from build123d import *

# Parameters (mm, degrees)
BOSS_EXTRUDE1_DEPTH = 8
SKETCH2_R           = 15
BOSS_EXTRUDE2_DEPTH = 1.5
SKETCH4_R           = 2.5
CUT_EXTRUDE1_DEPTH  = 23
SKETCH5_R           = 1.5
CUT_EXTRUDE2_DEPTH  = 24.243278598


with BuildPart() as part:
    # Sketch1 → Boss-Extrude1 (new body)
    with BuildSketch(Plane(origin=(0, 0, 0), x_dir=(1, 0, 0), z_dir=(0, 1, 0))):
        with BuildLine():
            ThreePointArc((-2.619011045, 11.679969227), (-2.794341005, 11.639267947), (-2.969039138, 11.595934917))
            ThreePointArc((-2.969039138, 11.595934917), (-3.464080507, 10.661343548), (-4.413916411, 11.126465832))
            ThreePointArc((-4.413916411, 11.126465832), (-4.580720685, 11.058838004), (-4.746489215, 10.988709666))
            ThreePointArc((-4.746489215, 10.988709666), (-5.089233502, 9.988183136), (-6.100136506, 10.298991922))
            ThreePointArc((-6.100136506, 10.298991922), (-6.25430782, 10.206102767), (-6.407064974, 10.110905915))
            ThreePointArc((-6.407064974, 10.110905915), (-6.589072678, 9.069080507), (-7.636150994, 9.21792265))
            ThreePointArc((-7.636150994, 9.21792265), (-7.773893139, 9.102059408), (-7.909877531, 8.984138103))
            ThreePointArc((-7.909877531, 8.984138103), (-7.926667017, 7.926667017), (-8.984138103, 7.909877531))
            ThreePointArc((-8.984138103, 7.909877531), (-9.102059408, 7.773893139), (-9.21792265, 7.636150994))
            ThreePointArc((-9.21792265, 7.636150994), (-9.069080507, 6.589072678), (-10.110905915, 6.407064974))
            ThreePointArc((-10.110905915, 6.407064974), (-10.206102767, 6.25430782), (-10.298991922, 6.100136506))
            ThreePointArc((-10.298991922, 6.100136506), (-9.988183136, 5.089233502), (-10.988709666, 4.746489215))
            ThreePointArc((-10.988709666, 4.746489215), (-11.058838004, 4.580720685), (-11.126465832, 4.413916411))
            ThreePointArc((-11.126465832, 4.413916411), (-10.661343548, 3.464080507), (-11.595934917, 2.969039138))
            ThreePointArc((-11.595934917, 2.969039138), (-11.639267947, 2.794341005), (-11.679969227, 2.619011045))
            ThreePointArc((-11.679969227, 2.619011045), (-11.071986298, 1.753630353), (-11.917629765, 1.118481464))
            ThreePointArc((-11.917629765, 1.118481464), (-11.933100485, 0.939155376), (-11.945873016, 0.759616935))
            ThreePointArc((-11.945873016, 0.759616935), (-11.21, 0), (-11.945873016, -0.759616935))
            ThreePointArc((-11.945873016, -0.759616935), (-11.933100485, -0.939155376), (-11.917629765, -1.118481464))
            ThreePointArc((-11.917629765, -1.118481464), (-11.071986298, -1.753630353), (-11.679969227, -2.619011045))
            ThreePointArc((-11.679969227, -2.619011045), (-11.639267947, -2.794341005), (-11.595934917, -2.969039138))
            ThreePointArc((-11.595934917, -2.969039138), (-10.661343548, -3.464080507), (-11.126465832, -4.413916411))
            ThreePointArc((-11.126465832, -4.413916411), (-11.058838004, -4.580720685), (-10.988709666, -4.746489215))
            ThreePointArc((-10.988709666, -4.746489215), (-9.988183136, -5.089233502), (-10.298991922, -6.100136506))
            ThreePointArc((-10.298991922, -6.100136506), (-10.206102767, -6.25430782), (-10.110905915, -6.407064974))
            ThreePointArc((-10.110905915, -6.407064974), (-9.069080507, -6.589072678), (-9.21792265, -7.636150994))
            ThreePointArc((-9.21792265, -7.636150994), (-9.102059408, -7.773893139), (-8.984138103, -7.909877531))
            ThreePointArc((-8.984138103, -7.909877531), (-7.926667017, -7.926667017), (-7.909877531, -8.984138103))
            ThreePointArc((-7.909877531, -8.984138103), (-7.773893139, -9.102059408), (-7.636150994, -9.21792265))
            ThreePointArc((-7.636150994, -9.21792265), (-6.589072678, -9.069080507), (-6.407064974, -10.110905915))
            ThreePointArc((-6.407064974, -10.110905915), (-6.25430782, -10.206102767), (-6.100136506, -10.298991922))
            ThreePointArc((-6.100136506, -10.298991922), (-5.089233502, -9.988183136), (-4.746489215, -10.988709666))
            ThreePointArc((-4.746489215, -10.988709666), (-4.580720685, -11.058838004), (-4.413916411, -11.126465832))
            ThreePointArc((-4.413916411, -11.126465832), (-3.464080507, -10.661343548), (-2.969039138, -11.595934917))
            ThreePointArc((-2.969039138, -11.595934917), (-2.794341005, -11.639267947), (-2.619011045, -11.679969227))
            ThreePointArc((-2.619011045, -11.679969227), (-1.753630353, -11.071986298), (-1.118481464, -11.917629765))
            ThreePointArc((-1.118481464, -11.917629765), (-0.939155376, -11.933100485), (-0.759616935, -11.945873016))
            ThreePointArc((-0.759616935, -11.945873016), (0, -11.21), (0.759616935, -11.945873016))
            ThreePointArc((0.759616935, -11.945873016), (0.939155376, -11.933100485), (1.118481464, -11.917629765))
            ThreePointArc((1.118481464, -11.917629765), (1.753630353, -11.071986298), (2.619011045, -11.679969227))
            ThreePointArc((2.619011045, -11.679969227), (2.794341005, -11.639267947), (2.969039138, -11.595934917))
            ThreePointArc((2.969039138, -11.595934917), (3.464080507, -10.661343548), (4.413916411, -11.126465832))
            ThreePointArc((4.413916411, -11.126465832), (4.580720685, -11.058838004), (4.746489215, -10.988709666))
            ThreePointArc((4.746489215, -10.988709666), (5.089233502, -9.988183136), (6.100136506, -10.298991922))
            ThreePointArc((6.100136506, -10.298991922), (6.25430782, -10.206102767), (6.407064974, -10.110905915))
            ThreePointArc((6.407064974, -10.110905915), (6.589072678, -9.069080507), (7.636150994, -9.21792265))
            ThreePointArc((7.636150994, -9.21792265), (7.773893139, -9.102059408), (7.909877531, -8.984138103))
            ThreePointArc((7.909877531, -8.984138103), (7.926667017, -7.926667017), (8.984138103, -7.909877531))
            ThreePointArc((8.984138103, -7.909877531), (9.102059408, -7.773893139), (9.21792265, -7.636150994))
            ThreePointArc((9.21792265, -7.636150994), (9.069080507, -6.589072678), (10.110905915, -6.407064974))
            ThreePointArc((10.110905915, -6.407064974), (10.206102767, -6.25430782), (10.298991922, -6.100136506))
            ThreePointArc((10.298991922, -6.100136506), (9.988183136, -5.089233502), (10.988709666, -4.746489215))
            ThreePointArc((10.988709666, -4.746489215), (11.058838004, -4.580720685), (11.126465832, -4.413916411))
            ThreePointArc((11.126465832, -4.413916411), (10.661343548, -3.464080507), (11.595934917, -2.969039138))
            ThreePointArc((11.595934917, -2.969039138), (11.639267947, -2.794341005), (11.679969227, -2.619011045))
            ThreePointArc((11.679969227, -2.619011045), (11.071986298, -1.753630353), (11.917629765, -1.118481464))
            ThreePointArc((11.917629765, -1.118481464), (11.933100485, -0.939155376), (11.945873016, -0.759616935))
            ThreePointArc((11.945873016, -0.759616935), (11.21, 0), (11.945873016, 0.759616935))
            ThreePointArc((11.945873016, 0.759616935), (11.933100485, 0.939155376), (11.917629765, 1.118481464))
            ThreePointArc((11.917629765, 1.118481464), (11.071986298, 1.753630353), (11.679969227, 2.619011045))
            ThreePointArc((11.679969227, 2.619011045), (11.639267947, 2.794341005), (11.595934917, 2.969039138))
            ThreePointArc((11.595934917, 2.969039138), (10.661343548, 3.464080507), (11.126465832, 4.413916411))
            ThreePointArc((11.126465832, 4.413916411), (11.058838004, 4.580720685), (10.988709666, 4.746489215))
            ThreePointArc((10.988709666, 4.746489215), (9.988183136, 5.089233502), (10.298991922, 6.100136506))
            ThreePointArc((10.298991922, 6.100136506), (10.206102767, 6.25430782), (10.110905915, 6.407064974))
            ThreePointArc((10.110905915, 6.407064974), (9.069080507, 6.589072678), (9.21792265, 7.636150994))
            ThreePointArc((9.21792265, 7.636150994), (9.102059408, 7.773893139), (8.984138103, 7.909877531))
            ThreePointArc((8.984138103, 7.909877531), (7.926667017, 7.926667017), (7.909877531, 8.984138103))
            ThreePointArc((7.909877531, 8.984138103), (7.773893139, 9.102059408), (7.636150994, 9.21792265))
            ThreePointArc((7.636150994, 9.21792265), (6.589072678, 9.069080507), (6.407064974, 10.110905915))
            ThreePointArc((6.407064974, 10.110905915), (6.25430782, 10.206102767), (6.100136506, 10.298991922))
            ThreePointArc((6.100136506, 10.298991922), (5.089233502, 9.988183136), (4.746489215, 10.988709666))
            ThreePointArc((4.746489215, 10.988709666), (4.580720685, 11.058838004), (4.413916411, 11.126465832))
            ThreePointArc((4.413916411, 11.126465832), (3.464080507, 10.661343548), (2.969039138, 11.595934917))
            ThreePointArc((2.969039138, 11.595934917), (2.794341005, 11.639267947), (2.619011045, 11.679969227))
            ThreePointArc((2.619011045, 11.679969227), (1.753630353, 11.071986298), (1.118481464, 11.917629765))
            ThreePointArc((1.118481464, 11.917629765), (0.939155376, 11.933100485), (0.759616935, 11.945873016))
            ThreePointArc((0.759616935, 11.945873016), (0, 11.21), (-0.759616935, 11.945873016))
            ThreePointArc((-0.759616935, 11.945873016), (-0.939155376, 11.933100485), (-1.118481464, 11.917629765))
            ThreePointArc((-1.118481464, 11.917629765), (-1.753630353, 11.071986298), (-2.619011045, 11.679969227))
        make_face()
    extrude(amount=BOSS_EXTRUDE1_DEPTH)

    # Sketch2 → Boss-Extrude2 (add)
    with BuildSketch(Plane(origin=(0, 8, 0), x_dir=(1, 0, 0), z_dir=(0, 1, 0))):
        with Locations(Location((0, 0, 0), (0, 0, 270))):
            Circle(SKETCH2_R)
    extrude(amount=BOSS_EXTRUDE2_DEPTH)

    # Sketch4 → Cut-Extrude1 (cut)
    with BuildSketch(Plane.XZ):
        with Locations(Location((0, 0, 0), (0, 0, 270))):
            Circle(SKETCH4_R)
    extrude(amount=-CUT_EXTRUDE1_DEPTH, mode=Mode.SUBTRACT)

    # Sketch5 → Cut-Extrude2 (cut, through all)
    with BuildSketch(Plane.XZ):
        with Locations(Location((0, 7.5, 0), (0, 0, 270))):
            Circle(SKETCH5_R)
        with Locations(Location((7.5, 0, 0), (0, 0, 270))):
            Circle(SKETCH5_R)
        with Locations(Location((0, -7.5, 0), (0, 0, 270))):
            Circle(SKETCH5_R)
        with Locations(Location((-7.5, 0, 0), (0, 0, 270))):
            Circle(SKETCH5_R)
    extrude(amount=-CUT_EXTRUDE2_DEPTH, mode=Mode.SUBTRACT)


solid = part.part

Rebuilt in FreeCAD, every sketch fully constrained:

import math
import FreeCAD as App
import Part
import Sketcher
Q = App.Units.Quantity

doc = App.newDocument("Part")
body = doc.addObject("PartDesign::Body", "Body")

sketch1 = body.newObject("Sketcher::SketchObject", "Sketch")
sketch1.AttachmentSupport = (doc.getObject("XZ_Plane"), [""])
sketch1.MapMode = "FlatFace"
sketch1.addGeometry([
    Part.ArcOfCircle(Part.Circle(App.Vector(0, 0, 0), App.Vector(0, 0, 1), 11.97), math.radians(-104.36), math.radians(-102.64)),
    Part.ArcOfCircle(Part.Circle(App.Vector(-3.7, -11.38, 0), App.Vector(0, 0, 1), 0.76), math.radians(-16), math.radians(160)),
    Part.ArcOfCircle(Part.Circle(App.Vector(0, 0, 0), App.Vector(0, 0, 1), 11.97), math.radians(-113.36), math.radians(-111.64)),
    Part.ArcOfCircle(Part.Circle(App.Vector(-5.43, -10.67, 0), App.Vector(0, 0, 1), 0.76), math.radians(-25), math.radians(151)),
    Part.ArcOfCircle(Part.Circle(App.Vector(0, 0, 0), App.Vector(0, 0, 1), 11.97), math.radians(-122.36), math.radians(-120.64)),
    Part.ArcOfCircle(Part.Circle(App.Vector(-7.04, -9.68, 0), App.Vector(0, 0, 1), 0.76), math.radians(-34), math.radians(142)),
    Part.ArcOfCircle(Part.Circle(App.Vector(0, 0, 0), App.Vector(0, 0, 1), 11.97), math.radians(-131.36), math.radians(-129.64)),
    Part.ArcOfCircle(Part.Circle(App.Vector(-8.46, -8.46, 0), App.Vector(0, 0, 1), 0.76), math.radians(-43), math.radians(133)),
    Part.ArcOfCircle(Part.Circle(App.Vector(0, 0, 0), App.Vector(0, 0, 1), 11.97), math.radians(-140.36), math.radians(-138.64)),
    Part.ArcOfCircle(Part.Circle(App.Vector(-9.68, -7.04, 0), App.Vector(0, 0, 1), 0.76), math.radians(-52), math.radians(124)),
    Part.ArcOfCircle(Part.Circle(App.Vector(0, 0, 0), App.Vector(0, 0, 1), 11.97), math.radians(-149.36), math.radians(-147.64)),
    Part.ArcOfCircle(Part.Circle(App.Vector(-10.67, -5.43, 0), App.Vector(0, 0, 1), 0.76), math.radians(-61), math.radians(115)),
    Part.ArcOfCircle(Part.Circle(App.Vector(0, 0, 0), App.Vector(0, 0, 1), 11.97), math.radians(-158.36), math.radians(-156.64)),
    Part.ArcOfCircle(Part.Circle(App.Vector(-11.38, -3.7, 0), App.Vector(0, 0, 1), 0.76), math.radians(-70), math.radians(106)),
    Part.ArcOfCircle(Part.Circle(App.Vector(0, 0, 0), App.Vector(0, 0, 1), 11.97), math.radians(-167.36), math.radians(-165.64)),
    Part.ArcOfCircle(Part.Circle(App.Vector(-11.82, -1.87, 0), App.Vector(0, 0, 1), 0.76), math.radians(-79), math.radians(97)),
    Part.ArcOfCircle(Part.Circle(App.Vector(0, 0, 0), App.Vector(0, 0, 1), 11.97), math.radians(-176.36), math.radians(-174.64)),
    Part.ArcOfCircle(Part.Circle(App.Vector(-11.97, 0, 0), App.Vector(0, 0, 1), 0.76), math.radians(-88), math.radians(88)),
    Part.ArcOfCircle(Part.Circle(App.Vector(0, 0, 0), App.Vector(0, 0, 1), 11.97), math.radians(174.64), math.radians(176.36)),
    Part.ArcOfCircle(Part.Circle(App.Vector(-11.82, 1.87, 0), App.Vector(0, 0, 1), 0.76), math.radians(-97), math.radians(79)),
    Part.ArcOfCircle(Part.Circle(App.Vector(0, 0, 0), App.Vector(0, 0, 1), 11.97), math.radians(165.64), math.radians(167.36)),
    Part.ArcOfCircle(Part.Circle(App.Vector(-11.38, 3.7, 0), App.Vector(0, 0, 1), 0.76), math.radians(-106), math.radians(70)),
    Part.ArcOfCircle(Part.Circle(App.Vector(0, 0, 0), App.Vector(0, 0, 1), 11.97), math.radians(156.64), math.radians(158.36)),
    Part.ArcOfCircle(Part.Circle(App.Vector(-10.67, 5.43, 0), App.Vector(0, 0, 1), 0.76), math.radians(-115), math.radians(61)),
    Part.ArcOfCircle(Part.Circle(App.Vector(0, 0, 0), App.Vector(0, 0, 1), 11.97), math.radians(147.64), math.radians(149.36)),
    Part.ArcOfCircle(Part.Circle(App.Vector(-9.68, 7.04, 0), App.Vector(0, 0, 1), 0.76), math.radians(-124), math.radians(52)),
    Part.ArcOfCircle(Part.Circle(App.Vector(0, 0, 0), App.Vector(0, 0, 1), 11.97), math.radians(138.64), math.radians(140.36)),
    Part.ArcOfCircle(Part.Circle(App.Vector(-8.46, 8.46, 0), App.Vector(0, 0, 1), 0.76), math.radians(-133), math.radians(43)),
    Part.ArcOfCircle(Part.Circle(App.Vector(0, 0, 0), App.Vector(0, 0, 1), 11.97), math.radians(129.64), math.radians(131.36)),
    Part.ArcOfCircle(Part.Circle(App.Vector(-7.04, 9.68, 0), App.Vector(0, 0, 1), 0.76), math.radians(-142), math.radians(34)),
    Part.ArcOfCircle(Part.Circle(App.Vector(0, 0, 0), App.Vector(0, 0, 1), 11.97), math.radians(120.64), math.radians(122.36)),
    Part.ArcOfCircle(Part.Circle(App.Vector(-5.43, 10.67, 0), App.Vector(0, 0, 1), 0.76), math.radians(-151), math.radians(25)),
    Part.ArcOfCircle(Part.Circle(App.Vector(0, 0, 0), App.Vector(0, 0, 1), 11.97), math.radians(111.64), math.radians(113.36)),
    Part.ArcOfCircle(Part.Circle(App.Vector(-3.7, 11.38, 0), App.Vector(0, 0, 1), 0.76), math.radians(-160), math.radians(16)),
    Part.ArcOfCircle(Part.Circle(App.Vector(0, 0, 0), App.Vector(0, 0, 1), 11.97), math.radians(102.64), math.radians(104.36)),
    Part.ArcOfCircle(Part.Circle(App.Vector(-1.87, 11.82, 0), App.Vector(0, 0, 1), 0.76), math.radians(-169), math.radians(7)),
    Part.ArcOfCircle(Part.Circle(App.Vector(0, 0, 0), App.Vector(0, 0, 1), 11.97), math.radians(93.64), math.radians(95.36)),
    Part.ArcOfCircle(Part.Circle(App.Vector(0, 11.97, 0), App.Vector(0, 0, 1), 0.76), math.radians(-178), math.radians(-2)),
    Part.ArcOfCircle(Part.Circle(App.Vector(0, 0, 0), App.Vector(0, 0, 1), 11.97), math.radians(84.64), math.radians(86.36)),
    Part.ArcOfCircle(Part.Circle(App.Vector(1.87, 11.82, 0), App.Vector(0, 0, 1), 0.76), math.radians(173), math.radians(349)),
    Part.ArcOfCircle(Part.Circle(App.Vector(0, 0, 0), App.Vector(0, 0, 1), 11.97), math.radians(75.64), math.radians(77.36)),
    Part.ArcOfCircle(Part.Circle(App.Vector(3.7, 11.38, 0), App.Vector(0, 0, 1), 0.76), math.radians(164), math.radians(340)),
    Part.ArcOfCircle(Part.Circle(App.Vector(0, 0, 0), App.Vector(0, 0, 1), 11.97), math.radians(66.64), math.radians(68.36)),
    Part.ArcOfCircle(Part.Circle(App.Vector(5.43, 10.67, 0), App.Vector(0, 0, 1), 0.76), math.radians(155), math.radians(331)),
    Part.ArcOfCircle(Part.Circle(App.Vector(0, 0, 0), App.Vector(0, 0, 1), 11.97), math.radians(57.64), math.radians(59.36)),
    Part.ArcOfCircle(Part.Circle(App.Vector(7.04, 9.68, 0), App.Vector(0, 0, 1), 0.76), math.radians(146), math.radians(322)),
    Part.ArcOfCircle(Part.Circle(App.Vector(0, 0, 0), App.Vector(0, 0, 1), 11.97), math.radians(48.64), math.radians(50.36)),
    Part.ArcOfCircle(Part.Circle(App.Vector(8.46, 8.46, 0), App.Vector(0, 0, 1), 0.76), math.radians(137), math.radians(313)),
    Part.ArcOfCircle(Part.Circle(App.Vector(0, 0, 0), App.Vector(0, 0, 1), 11.97), math.radians(39.64), math.radians(41.36)),
    Part.ArcOfCircle(Part.Circle(App.Vector(9.68, 7.04, 0), App.Vector(0, 0, 1), 0.76), math.radians(128), math.radians(304)),
    Part.ArcOfCircle(Part.Circle(App.Vector(0, 0, 0), App.Vector(0, 0, 1), 11.97), math.radians(30.64), math.radians(32.36)),
    Part.ArcOfCircle(Part.Circle(App.Vector(10.67, 5.43, 0), App.Vector(0, 0, 1), 0.76), math.radians(119), math.radians(295)),
    Part.ArcOfCircle(Part.Circle(App.Vector(0, 0, 0), App.Vector(0, 0, 1), 11.97), math.radians(21.64), math.radians(23.36)),
    Part.ArcOfCircle(Part.Circle(App.Vector(11.38, 3.7, 0), App.Vector(0, 0, 1), 0.76), math.radians(110), math.radians(286)),
    Part.ArcOfCircle(Part.Circle(App.Vector(0, 0, 0), App.Vector(0, 0, 1), 11.97), math.radians(12.64), math.radians(14.36)),
    Part.ArcOfCircle(Part.Circle(App.Vector(11.82, 1.87, 0), App.Vector(0, 0, 1), 0.76), math.radians(101), math.radians(277)),
    Part.ArcOfCircle(Part.Circle(App.Vector(0, 0, 0), App.Vector(0, 0, 1), 11.97), math.radians(3.64), math.radians(5.36)),
    Part.ArcOfCircle(Part.Circle(App.Vector(11.97, 0, 0), App.Vector(0, 0, 1), 0.76), math.radians(92), math.radians(268)),
    Part.ArcOfCircle(Part.Circle(App.Vector(0, 0, 0), App.Vector(0, 0, 1), 11.97), math.radians(-5.36), math.radians(-3.64)),
    Part.ArcOfCircle(Part.Circle(App.Vector(11.82, -1.87, 0), App.Vector(0, 0, 1), 0.76), math.radians(83), math.radians(259)),
    Part.ArcOfCircle(Part.Circle(App.Vector(0, 0, 0), App.Vector(0, 0, 1), 11.97), math.radians(-14.36), math.radians(-12.64)),
    Part.ArcOfCircle(Part.Circle(App.Vector(11.38, -3.7, 0), App.Vector(0, 0, 1), 0.76), math.radians(74), math.radians(250)),
    Part.ArcOfCircle(Part.Circle(App.Vector(0, 0, 0), App.Vector(0, 0, 1), 11.97), math.radians(-23.36), math.radians(-21.64)),
    Part.ArcOfCircle(Part.Circle(App.Vector(10.67, -5.43, 0), App.Vector(0, 0, 1), 0.76), math.radians(65), math.radians(241)),
    Part.ArcOfCircle(Part.Circle(App.Vector(0, 0, 0), App.Vector(0, 0, 1), 11.97), math.radians(-32.36), math.radians(-30.64)),
    Part.ArcOfCircle(Part.Circle(App.Vector(9.68, -7.04, 0), App.Vector(0, 0, 1), 0.76), math.radians(56), math.radians(232)),
    Part.ArcOfCircle(Part.Circle(App.Vector(0, 0, 0), App.Vector(0, 0, 1), 11.97), math.radians(-41.36), math.radians(-39.64)),
    Part.ArcOfCircle(Part.Circle(App.Vector(8.46, -8.46, 0), App.Vector(0, 0, 1), 0.76), math.radians(47), math.radians(223)),
    Part.ArcOfCircle(Part.Circle(App.Vector(0, 0, 0), App.Vector(0, 0, 1), 11.97), math.radians(-50.36), math.radians(-48.64)),
    Part.ArcOfCircle(Part.Circle(App.Vector(7.04, -9.68, 0), App.Vector(0, 0, 1), 0.76), math.radians(38), math.radians(214)),
    Part.ArcOfCircle(Part.Circle(App.Vector(0, 0, 0), App.Vector(0, 0, 1), 11.97), math.radians(-59.36), math.radians(-57.64)),
    Part.ArcOfCircle(Part.Circle(App.Vector(5.43, -10.67, 0), App.Vector(0, 0, 1), 0.76), math.radians(29), math.radians(205)),
    Part.ArcOfCircle(Part.Circle(App.Vector(0, 0, 0), App.Vector(0, 0, 1), 11.97), math.radians(-68.36), math.radians(-66.64)),
    Part.ArcOfCircle(Part.Circle(App.Vector(3.7, -11.38, 0), App.Vector(0, 0, 1), 0.76), math.radians(20), math.radians(196)),
    Part.ArcOfCircle(Part.Circle(App.Vector(0, 0, 0), App.Vector(0, 0, 1), 11.97), math.radians(-77.36), math.radians(-75.64)),
    Part.ArcOfCircle(Part.Circle(App.Vector(1.87, -11.82, 0), App.Vector(0, 0, 1), 0.76), math.radians(11), math.radians(187)),
    Part.ArcOfCircle(Part.Circle(App.Vector(0, 0, 0), App.Vector(0, 0, 1), 11.97), math.radians(-86.36), math.radians(-84.64)),
    Part.ArcOfCircle(Part.Circle(App.Vector(0, -11.97, 0), App.Vector(0, 0, 1), 0.76), math.radians(2), math.radians(178)),
    Part.ArcOfCircle(Part.Circle(App.Vector(0, 0, 0), App.Vector(0, 0, 1), 11.97), math.radians(-95.36), math.radians(-93.64)),
    Part.ArcOfCircle(Part.Circle(App.Vector(-1.87, -11.82, 0), App.Vector(0, 0, 1), 0.76), math.radians(-7), math.radians(169)),
], False)
sketch1.addConstraint([
    Sketcher.Constraint("Coincident", 0, 1, 1, 1),
    Sketcher.Constraint("Coincident", 1, 2, 2, 2),
    Sketcher.Constraint("Coincident", 2, 1, 3, 1),
    Sketcher.Constraint("Coincident", 3, 2, 4, 2),
    Sketcher.Constraint("Coincident", 4, 1, 5, 1),
    Sketcher.Constraint("Coincident", 5, 2, 6, 2),
    Sketcher.Constraint("Coincident", 6, 1, 7, 1),
    Sketcher.Constraint("Coincident", 7, 2, 8, 2),
    Sketcher.Constraint("Coincident", 8, 1, 9, 1),
    Sketcher.Constraint("Coincident", 9, 2, 10, 2),
    Sketcher.Constraint("Coincident", 10, 1, 11, 1),
    Sketcher.Constraint("Coincident", 11, 2, 12, 2),
    Sketcher.Constraint("Coincident", 12, 1, 13, 1),
    Sketcher.Constraint("Coincident", 13, 2, 14, 2),
    Sketcher.Constraint("Coincident", 14, 1, 15, 1),
    Sketcher.Constraint("Coincident", 15, 2, 16, 2),
    Sketcher.Constraint("Coincident", 16, 1, 17, 1),
    Sketcher.Constraint("Coincident", 17, 2, 18, 2),
    Sketcher.Constraint("Coincident", 18, 1, 19, 1),
    Sketcher.Constraint("Coincident", 19, 2, 20, 2),
    Sketcher.Constraint("Coincident", 20, 1, 21, 1),
    Sketcher.Constraint("Coincident", 21, 2, 22, 2),
    Sketcher.Constraint("Coincident", 22, 1, 23, 1),
    Sketcher.Constraint("Coincident", 23, 2, 24, 2),
    Sketcher.Constraint("Coincident", 24, 1, 25, 1),
    Sketcher.Constraint("Coincident", 25, 2, 26, 2),
    Sketcher.Constraint("Coincident", 26, 1, 27, 1),
    Sketcher.Constraint("Coincident", 27, 2, 28, 2),
    Sketcher.Constraint("Coincident", 28, 1, 29, 1),
    Sketcher.Constraint("Coincident", 29, 2, 30, 2),
    Sketcher.Constraint("Coincident", 30, 1, 31, 1),
    Sketcher.Constraint("Coincident", 31, 2, 32, 2),
    Sketcher.Constraint("Coincident", 32, 1, 33, 1),
    Sketcher.Constraint("Coincident", 33, 2, 34, 2),
    Sketcher.Constraint("Coincident", 34, 1, 35, 1),
    Sketcher.Constraint("Coincident", 35, 2, 36, 2),
    Sketcher.Constraint("Coincident", 36, 1, 37, 1),
    Sketcher.Constraint("Coincident", 37, 2, 38, 2),
    Sketcher.Constraint("Coincident", 38, 1, 39, 1),
    Sketcher.Constraint("Coincident", 39, 2, 40, 2),
    Sketcher.Constraint("Coincident", 40, 1, 41, 1),
    Sketcher.Constraint("Coincident", 41, 2, 42, 2),
    Sketcher.Constraint("Coincident", 42, 1, 43, 1),
    Sketcher.Constraint("Coincident", 43, 2, 44, 2),
    Sketcher.Constraint("Coincident", 44, 1, 45, 1),
    Sketcher.Constraint("Coincident", 45, 2, 46, 2),
    Sketcher.Constraint("Coincident", 46, 1, 47, 1),
    Sketcher.Constraint("Coincident", 47, 2, 48, 2),
    Sketcher.Constraint("Coincident", 48, 1, 49, 1),
    Sketcher.Constraint("Coincident", 49, 2, 50, 2),
    Sketcher.Constraint("Coincident", 50, 1, 51, 1),
    Sketcher.Constraint("Coincident", 51, 2, 52, 2),
    Sketcher.Constraint("Coincident", 52, 1, 53, 1),
    Sketcher.Constraint("Coincident", 53, 2, 54, 2),
    Sketcher.Constraint("Coincident", 54, 1, 55, 1),
    Sketcher.Constraint("Coincident", 55, 2, 56, 2),
    Sketcher.Constraint("Coincident", 56, 1, 57, 1),
    Sketcher.Constraint("Coincident", 57, 2, 58, 2),
    Sketcher.Constraint("Coincident", 58, 1, 59, 1),
    Sketcher.Constraint("Coincident", 59, 2, 60, 2),
    Sketcher.Constraint("Coincident", 60, 1, 61, 1),
    Sketcher.Constraint("Coincident", 61, 2, 62, 2),
    Sketcher.Constraint("Coincident", 62, 1, 63, 1),
    Sketcher.Constraint("Coincident", 63, 2, 64, 2),
    Sketcher.Constraint("Coincident", 64, 1, 65, 1),
    Sketcher.Constraint("Coincident", 65, 2, 66, 2),
    Sketcher.Constraint("Coincident", 66, 1, 67, 1),
    Sketcher.Constraint("Coincident", 67, 2, 68, 2),
    Sketcher.Constraint("Coincident", 68, 1, 69, 1),
    Sketcher.Constraint("Coincident", 69, 2, 70, 2),
    Sketcher.Constraint("Coincident", 70, 1, 71, 1),
    Sketcher.Constraint("Coincident", 71, 2, 72, 2),
    Sketcher.Constraint("Coincident", 72, 1, 73, 1),
    Sketcher.Constraint("Coincident", 73, 2, 74, 2),
    Sketcher.Constraint("Coincident", 74, 1, 75, 1),
    Sketcher.Constraint("Coincident", 75, 2, 76, 2),
    Sketcher.Constraint("Coincident", 76, 1, 77, 1),
    Sketcher.Constraint("Coincident", 77, 2, 78, 2),
    Sketcher.Constraint("Coincident", 78, 1, 79, 1),
    Sketcher.Constraint("Coincident", 79, 2, 0, 2),
    Sketcher.Constraint("Coincident", 0, 3, -1, 1),
    Sketcher.Constraint("Coincident", 2, 3, -1, 1),
    Sketcher.Constraint("Coincident", 4, 3, -1, 1),
    Sketcher.Constraint("Coincident", 6, 3, -1, 1),
    Sketcher.Constraint("Coincident", 8, 3, -1, 1),
    Sketcher.Constraint("Coincident", 10, 3, -1, 1),
    Sketcher.Constraint("Coincident", 12, 3, -1, 1),
    Sketcher.Constraint("Coincident", 14, 3, -1, 1),
    Sketcher.Constraint("Coincident", 16, 3, -1, 1),
    Sketcher.Constraint("Coincident", 18, 3, -1, 1),
    Sketcher.Constraint("Coincident", 20, 3, -1, 1),
    Sketcher.Constraint("Coincident", 22, 3, -1, 1),
    Sketcher.Constraint("Coincident", 24, 3, -1, 1),
    Sketcher.Constraint("Coincident", 26, 3, -1, 1),
    Sketcher.Constraint("Coincident", 28, 3, -1, 1),
    Sketcher.Constraint("Coincident", 30, 3, -1, 1),
    Sketcher.Constraint("Coincident", 32, 3, -1, 1),
    Sketcher.Constraint("Coincident", 34, 3, -1, 1),
    Sketcher.Constraint("Coincident", 36, 3, -1, 1),
    Sketcher.Constraint("Coincident", 38, 3, -1, 1),
    Sketcher.Constraint("Coincident", 40, 3, -1, 1),
    Sketcher.Constraint("Coincident", 42, 3, -1, 1),
    Sketcher.Constraint("Coincident", 44, 3, -1, 1),
    Sketcher.Constraint("Coincident", 46, 3, -1, 1),
    Sketcher.Constraint("Coincident", 48, 3, -1, 1),
    Sketcher.Constraint("Coincident", 50, 3, -1, 1),
    Sketcher.Constraint("Coincident", 52, 3, -1, 1),
    Sketcher.Constraint("Coincident", 54, 3, -1, 1),
    Sketcher.Constraint("Coincident", 56, 3, -1, 1),
    Sketcher.Constraint("Coincident", 58, 3, -1, 1),
    Sketcher.Constraint("Coincident", 60, 3, -1, 1),
    Sketcher.Constraint("Coincident", 62, 3, -1, 1),
    Sketcher.Constraint("Coincident", 64, 3, -1, 1),
    Sketcher.Constraint("Coincident", 66, 3, -1, 1),
    Sketcher.Constraint("Coincident", 68, 3, -1, 1),
    Sketcher.Constraint("Coincident", 70, 3, -1, 1),
    Sketcher.Constraint("Coincident", 72, 3, -1, 1),
    Sketcher.Constraint("Coincident", 74, 3, -1, 1),
    Sketcher.Constraint("Coincident", 76, 3, -1, 1),
    Sketcher.Constraint("Coincident", 78, 3, -1, 1),
    Sketcher.Constraint("Equal", 1, 3),
    Sketcher.Constraint("Equal", 2, 4),
    Sketcher.Constraint("Equal", 3, 5),
    Sketcher.Constraint("Equal", 5, 7),
    Sketcher.Constraint("Equal", 6, 8),
    Sketcher.Constraint("Equal", 7, 9),
    Sketcher.Constraint("Equal", 4, 10),
    Sketcher.Constraint("Equal", 9, 11),
    Sketcher.Constraint("Equal", 10, 12),
    Sketcher.Constraint("Equal", 11, 13),
    Sketcher.Constraint("Equal", 10, 14),
    Sketcher.Constraint("Equal", 13, 15),
    Sketcher.Constraint("Equal", 12, 16),
    Sketcher.Constraint("Equal", 15, 17),
    Sketcher.Constraint("Equal", 16, 18),
    Sketcher.Constraint("Equal", 17, 19),
    Sketcher.Constraint("Equal", 14, 20),
    Sketcher.Constraint("Equal", 19, 21),
    Sketcher.Constraint("Equal", 18, 22),
    Sketcher.Constraint("Equal", 21, 23),
    Sketcher.Constraint("Equal", 22, 24),
    Sketcher.Constraint("Equal", 23, 25),
    Sketcher.Constraint("Equal", 18, 26),
    Sketcher.Constraint("Equal", 25, 27),
    Sketcher.Constraint("Equal", 26, 28),
    Sketcher.Constraint("Equal", 27, 29),
    Sketcher.Constraint("Equal", 24, 30),
    Sketcher.Constraint("Equal", 29, 31),
    Sketcher.Constraint("Equal", 30, 32),
    Sketcher.Constraint("Equal", 31, 33),
    Sketcher.Constraint("Equal", 30, 34),
    Sketcher.Constraint("Equal", 33, 35),
    Sketcher.Constraint("Equal", 32, 36),
    Sketcher.Constraint("Equal", 35, 37),
    Sketcher.Constraint("Equal", 36, 38),
    Sketcher.Constraint("Equal", 37, 39),
    Sketcher.Constraint("Equal", 34, 40),
    Sketcher.Constraint("Equal", 39, 41),
    Sketcher.Constraint("Equal", 38, 42),
    Sketcher.Constraint("Equal", 41, 43),
    Sketcher.Constraint("Equal", 42, 44),
    Sketcher.Constraint("Equal", 43, 45),
    Sketcher.Constraint("Equal", 38, 46),
    Sketcher.Constraint("Equal", 45, 47),
    Sketcher.Constraint("Equal", 46, 48),
    Sketcher.Constraint("Equal", 47, 49),
    Sketcher.Constraint("Equal", 44, 50),
    Sketcher.Constraint("Equal", 49, 51),
    Sketcher.Constraint("Equal", 50, 52),
    Sketcher.Constraint("Equal", 51, 53),
    Sketcher.Constraint("Equal", 50, 54),
    Sketcher.Constraint("Equal", 53, 55),
    Sketcher.Constraint("Equal", 52, 56),
    Sketcher.Constraint("Equal", 55, 57),
    Sketcher.Constraint("Equal", 56, 58),
    Sketcher.Constraint("Equal", 57, 59),
    Sketcher.Constraint("Equal", 54, 60),
    Sketcher.Constraint("Equal", 59, 61),
    Sketcher.Constraint("Equal", 58, 62),
    Sketcher.Constraint("Equal", 61, 63),
    Sketcher.Constraint("Equal", 62, 64),
    Sketcher.Constraint("Equal", 63, 65),
    Sketcher.Constraint("Equal", 58, 66),
    Sketcher.Constraint("Equal", 65, 67),
    Sketcher.Constraint("Equal", 66, 68),
    Sketcher.Constraint("Equal", 67, 69),
    Sketcher.Constraint("Equal", 64, 70),
    Sketcher.Constraint("Equal", 69, 71),
    Sketcher.Constraint("Equal", 70, 72),
    Sketcher.Constraint("Equal", 71, 73),
    Sketcher.Constraint("Equal", 70, 74),
    Sketcher.Constraint("Equal", 73, 75),
    Sketcher.Constraint("Equal", 72, 76),
    Sketcher.Constraint("Equal", 75, 77),
    Sketcher.Constraint("Equal", 76, 78),
    Sketcher.Constraint("Equal", 77, 79),
    Sketcher.Constraint("Symmetric", 1, 3, 41, 3, -1, 1),
    Sketcher.Constraint("Symmetric", 3, 3, 43, 3, -1, 1),
    Sketcher.Constraint("Symmetric", 5, 3, 45, 3, -1, 1),
    Sketcher.Constraint("Symmetric", 7, 3, 47, 3, -1, 1),
    Sketcher.Constraint("Symmetric", 9, 3, 49, 3, -1, 1),
    Sketcher.Constraint("Symmetric", 11, 3, 51, 3, -1, 1),
    Sketcher.Constraint("Symmetric", 13, 3, 53, 3, -1, 1),
    Sketcher.Constraint("Symmetric", 15, 3, 55, 3, -1, 1),
    Sketcher.Constraint("Symmetric", 17, 3, 57, 3, -1, 1),
    Sketcher.Constraint("Symmetric", 19, 3, 59, 3, -1, 1),
    Sketcher.Constraint("Symmetric", 21, 3, 61, 3, -1, 1),
    Sketcher.Constraint("Symmetric", 23, 3, 63, 3, -1, 1),
    Sketcher.Constraint("Symmetric", 25, 3, 65, 3, -1, 1),
    Sketcher.Constraint("Symmetric", 27, 3, 67, 3, -1, 1),
    Sketcher.Constraint("Symmetric", 29, 3, 69, 3, -1, 1),
    Sketcher.Constraint("Symmetric", 31, 3, 71, 3, -1, 1),
    Sketcher.Constraint("Symmetric", 33, 3, 73, 3, -1, 1),
    Sketcher.Constraint("Symmetric", 35, 3, 75, 3, -1, 1),
    Sketcher.Constraint("Symmetric", 37, 3, 77, 3, -1, 1),
    Sketcher.Constraint("Symmetric", 39, 3, 79, 3, -1, 1),
    Sketcher.Constraint("Symmetric", 35, 3, 39, 3, -2),
    Sketcher.Constraint("Symmetric", 33, 3, 41, 3, -2),
    Sketcher.Constraint("Symmetric", 31, 3, 43, 3, -2),
    Sketcher.Constraint("Symmetric", 29, 3, 45, 3, -2),
    Sketcher.Constraint("Symmetric", 27, 3, 47, 3, -2),
    Sketcher.Constraint("Symmetric", 25, 3, 49, 3, -2),
    Sketcher.Constraint("Symmetric", 23, 3, 51, 3, -2),
    Sketcher.Constraint("Symmetric", 21, 3, 53, 3, -2),
    Sketcher.Constraint("Symmetric", 19, 3, 55, 3, -2),
    Sketcher.Constraint("PointOnObject", 17, 3, -1),
    Sketcher.Constraint("PointOnObject", 37, 3, -2),
    Sketcher.Constraint("Horizontal", 8, 1, 65, 2),
    Sketcher.Constraint("Horizontal", 0, 1, 73, 2),
    Sketcher.Constraint("Radius", 1, Q("0.76 mm")),
    Sketcher.Constraint("Radius", 2, Q("11.97 mm")),
    Sketcher.Constraint("DistanceX", 17, 3, -1, 1, Q("11.97 mm")),
    Sketcher.Constraint("DistanceY", -1, 1, 37, 3, Q("11.97 mm")),
    Sketcher.Constraint("DistanceY", 3, 3, -1, 1, Q("10.665348 mm")),
    Sketcher.Constraint("DistanceX", 5, 3, -1, 1, Q("7.035789 mm")),
    Sketcher.Constraint("DistanceX", 7, 3, -1, 1, Q("8.464068 mm")),
    Sketcher.Constraint("DistanceY", 7, 3, -1, 1, Q("8.464068 mm")),
    Sketcher.Constraint("DistanceY", 9, 3, -1, 1, Q("7.035789 mm")),
    Sketcher.Constraint("DistanceX", 11, 3, -1, 1, Q("10.665348 mm")),
    Sketcher.Constraint("DistanceX", 15, 3, -1, 1, Q("11.822629 mm")),
    Sketcher.Constraint("DistanceY", 15, 3, -1, 1, Q("1.872521 mm")),
    Sketcher.Constraint("DistanceX", 35, 3, -1, 1, Q("1.872521 mm")),
    Sketcher.Constraint("DistanceY", -1, 1, 35, 3, Q("11.822629 mm")),
    Sketcher.Constraint("DistanceX", 0, 1, -1, 1, Q("2.969039 mm")),
    Sketcher.Constraint("DistanceX", 2, 1, -1, 1, Q("4.746489 mm")),
    Sketcher.Constraint("DistanceX", 5, 2, -1, 1, Q("7.636151 mm")),
    Sketcher.Constraint("DistanceY", 8, 1, -1, 1, Q("7.636151 mm")),
    Sketcher.Constraint("DistanceX", 10, 1, -1, 1, Q("10.298992 mm")),
    Sketcher.Constraint("DistanceY", 13, 2, -1, 1, Q("2.969039 mm")),
    Sketcher.Constraint("DistanceX", 1, 3, -1, 1, Q("3.698933 mm")),
    Sketcher.Constraint("DistanceX", 13, 3, -1, 1, Q("11.384147 mm")),
])
pad1 = body.newObject("PartDesign::Pad", "Pad")
pad1.Profile = sketch1
pad1.Length = 8
pad1.Reversed = True

sketch2 = body.newObject("Sketcher::SketchObject", "Sketch001")
sketch2.AttachmentSupport = (doc.getObject("XZ_Plane"), [""])
sketch2.MapMode = "FlatFace"
sketch2.AttachmentOffset = App.Placement(App.Vector(0, 0, -8), App.Rotation())
sketch2.addGeometry(Part.Circle(App.Vector(0, 0, 0), App.Vector(0, 0, 1), 15), False)
sketch2.addConstraint([
    Sketcher.Constraint("Coincident", 0, 3, -1, 1),
    Sketcher.Constraint("Diameter", 0, Q("30 mm")),
])
pad2 = body.newObject("PartDesign::Pad", "Pad001")
pad2.Profile = sketch2
pad2.Length = 1.5
pad2.Reversed = True

sketch3 = body.newObject("Sketcher::SketchObject", "Sketch002")
sketch3.AttachmentSupport = (doc.getObject("XZ_Plane"), [""])
sketch3.MapMode = "FlatFace"
sketch3.addGeometry(Part.Circle(App.Vector(0, 0, 0), App.Vector(0, 0, 1), 2.5), False)
sketch3.addConstraint([
    Sketcher.Constraint("Coincident", 0, 3, -1, 1),
    Sketcher.Constraint("Diameter", 0, Q("5 mm")),
])
pocket1 = body.newObject("PartDesign::Pocket", "Pocket")
pocket1.Profile = sketch3
pocket1.Length = 23

sketch4 = body.newObject("Sketcher::SketchObject", "Sketch003")
sketch4.AttachmentSupport = (doc.getObject("XZ_Plane"), [""])
sketch4.MapMode = "FlatFace"
sketch4.addGeometry([
    Part.Circle(App.Vector(0, 7.5, 0), App.Vector(0, 0, 1), 1.5),
    Part.Circle(App.Vector(7.5, 0, 0), App.Vector(0, 0, 1), 1.5),
    Part.Circle(App.Vector(0, -7.5, 0), App.Vector(0, 0, 1), 1.5),
    Part.Circle(App.Vector(-7.5, 0, 0), App.Vector(0, 0, 1), 1.5),
], False)
sketch4.addConstraint([
    Sketcher.Constraint("Equal", 0, 1),
    Sketcher.Constraint("Equal", 1, 2),
    Sketcher.Constraint("Equal", 2, 3),
    Sketcher.Constraint("Symmetric", 0, 3, 2, 3, -1, 1),
    Sketcher.Constraint("Symmetric", 1, 3, 3, 3, -1, 1),
    Sketcher.Constraint("PointOnObject", 0, 3, -2),
    Sketcher.Constraint("PointOnObject", 1, 3, -1),
    Sketcher.Constraint("Diameter", 0, Q("3 mm")),
    Sketcher.Constraint("DistanceY", 2, 3, 0, 3, Q("15 mm")),
    Sketcher.Constraint("DistanceX", 3, 3, 1, 3, Q("15 mm")),
])
pocket2 = body.newObject("PartDesign::Pocket", "Pocket001")
pocket2.Profile = sketch4
pocket2.Type = "ThroughAll"

doc.recompute()
